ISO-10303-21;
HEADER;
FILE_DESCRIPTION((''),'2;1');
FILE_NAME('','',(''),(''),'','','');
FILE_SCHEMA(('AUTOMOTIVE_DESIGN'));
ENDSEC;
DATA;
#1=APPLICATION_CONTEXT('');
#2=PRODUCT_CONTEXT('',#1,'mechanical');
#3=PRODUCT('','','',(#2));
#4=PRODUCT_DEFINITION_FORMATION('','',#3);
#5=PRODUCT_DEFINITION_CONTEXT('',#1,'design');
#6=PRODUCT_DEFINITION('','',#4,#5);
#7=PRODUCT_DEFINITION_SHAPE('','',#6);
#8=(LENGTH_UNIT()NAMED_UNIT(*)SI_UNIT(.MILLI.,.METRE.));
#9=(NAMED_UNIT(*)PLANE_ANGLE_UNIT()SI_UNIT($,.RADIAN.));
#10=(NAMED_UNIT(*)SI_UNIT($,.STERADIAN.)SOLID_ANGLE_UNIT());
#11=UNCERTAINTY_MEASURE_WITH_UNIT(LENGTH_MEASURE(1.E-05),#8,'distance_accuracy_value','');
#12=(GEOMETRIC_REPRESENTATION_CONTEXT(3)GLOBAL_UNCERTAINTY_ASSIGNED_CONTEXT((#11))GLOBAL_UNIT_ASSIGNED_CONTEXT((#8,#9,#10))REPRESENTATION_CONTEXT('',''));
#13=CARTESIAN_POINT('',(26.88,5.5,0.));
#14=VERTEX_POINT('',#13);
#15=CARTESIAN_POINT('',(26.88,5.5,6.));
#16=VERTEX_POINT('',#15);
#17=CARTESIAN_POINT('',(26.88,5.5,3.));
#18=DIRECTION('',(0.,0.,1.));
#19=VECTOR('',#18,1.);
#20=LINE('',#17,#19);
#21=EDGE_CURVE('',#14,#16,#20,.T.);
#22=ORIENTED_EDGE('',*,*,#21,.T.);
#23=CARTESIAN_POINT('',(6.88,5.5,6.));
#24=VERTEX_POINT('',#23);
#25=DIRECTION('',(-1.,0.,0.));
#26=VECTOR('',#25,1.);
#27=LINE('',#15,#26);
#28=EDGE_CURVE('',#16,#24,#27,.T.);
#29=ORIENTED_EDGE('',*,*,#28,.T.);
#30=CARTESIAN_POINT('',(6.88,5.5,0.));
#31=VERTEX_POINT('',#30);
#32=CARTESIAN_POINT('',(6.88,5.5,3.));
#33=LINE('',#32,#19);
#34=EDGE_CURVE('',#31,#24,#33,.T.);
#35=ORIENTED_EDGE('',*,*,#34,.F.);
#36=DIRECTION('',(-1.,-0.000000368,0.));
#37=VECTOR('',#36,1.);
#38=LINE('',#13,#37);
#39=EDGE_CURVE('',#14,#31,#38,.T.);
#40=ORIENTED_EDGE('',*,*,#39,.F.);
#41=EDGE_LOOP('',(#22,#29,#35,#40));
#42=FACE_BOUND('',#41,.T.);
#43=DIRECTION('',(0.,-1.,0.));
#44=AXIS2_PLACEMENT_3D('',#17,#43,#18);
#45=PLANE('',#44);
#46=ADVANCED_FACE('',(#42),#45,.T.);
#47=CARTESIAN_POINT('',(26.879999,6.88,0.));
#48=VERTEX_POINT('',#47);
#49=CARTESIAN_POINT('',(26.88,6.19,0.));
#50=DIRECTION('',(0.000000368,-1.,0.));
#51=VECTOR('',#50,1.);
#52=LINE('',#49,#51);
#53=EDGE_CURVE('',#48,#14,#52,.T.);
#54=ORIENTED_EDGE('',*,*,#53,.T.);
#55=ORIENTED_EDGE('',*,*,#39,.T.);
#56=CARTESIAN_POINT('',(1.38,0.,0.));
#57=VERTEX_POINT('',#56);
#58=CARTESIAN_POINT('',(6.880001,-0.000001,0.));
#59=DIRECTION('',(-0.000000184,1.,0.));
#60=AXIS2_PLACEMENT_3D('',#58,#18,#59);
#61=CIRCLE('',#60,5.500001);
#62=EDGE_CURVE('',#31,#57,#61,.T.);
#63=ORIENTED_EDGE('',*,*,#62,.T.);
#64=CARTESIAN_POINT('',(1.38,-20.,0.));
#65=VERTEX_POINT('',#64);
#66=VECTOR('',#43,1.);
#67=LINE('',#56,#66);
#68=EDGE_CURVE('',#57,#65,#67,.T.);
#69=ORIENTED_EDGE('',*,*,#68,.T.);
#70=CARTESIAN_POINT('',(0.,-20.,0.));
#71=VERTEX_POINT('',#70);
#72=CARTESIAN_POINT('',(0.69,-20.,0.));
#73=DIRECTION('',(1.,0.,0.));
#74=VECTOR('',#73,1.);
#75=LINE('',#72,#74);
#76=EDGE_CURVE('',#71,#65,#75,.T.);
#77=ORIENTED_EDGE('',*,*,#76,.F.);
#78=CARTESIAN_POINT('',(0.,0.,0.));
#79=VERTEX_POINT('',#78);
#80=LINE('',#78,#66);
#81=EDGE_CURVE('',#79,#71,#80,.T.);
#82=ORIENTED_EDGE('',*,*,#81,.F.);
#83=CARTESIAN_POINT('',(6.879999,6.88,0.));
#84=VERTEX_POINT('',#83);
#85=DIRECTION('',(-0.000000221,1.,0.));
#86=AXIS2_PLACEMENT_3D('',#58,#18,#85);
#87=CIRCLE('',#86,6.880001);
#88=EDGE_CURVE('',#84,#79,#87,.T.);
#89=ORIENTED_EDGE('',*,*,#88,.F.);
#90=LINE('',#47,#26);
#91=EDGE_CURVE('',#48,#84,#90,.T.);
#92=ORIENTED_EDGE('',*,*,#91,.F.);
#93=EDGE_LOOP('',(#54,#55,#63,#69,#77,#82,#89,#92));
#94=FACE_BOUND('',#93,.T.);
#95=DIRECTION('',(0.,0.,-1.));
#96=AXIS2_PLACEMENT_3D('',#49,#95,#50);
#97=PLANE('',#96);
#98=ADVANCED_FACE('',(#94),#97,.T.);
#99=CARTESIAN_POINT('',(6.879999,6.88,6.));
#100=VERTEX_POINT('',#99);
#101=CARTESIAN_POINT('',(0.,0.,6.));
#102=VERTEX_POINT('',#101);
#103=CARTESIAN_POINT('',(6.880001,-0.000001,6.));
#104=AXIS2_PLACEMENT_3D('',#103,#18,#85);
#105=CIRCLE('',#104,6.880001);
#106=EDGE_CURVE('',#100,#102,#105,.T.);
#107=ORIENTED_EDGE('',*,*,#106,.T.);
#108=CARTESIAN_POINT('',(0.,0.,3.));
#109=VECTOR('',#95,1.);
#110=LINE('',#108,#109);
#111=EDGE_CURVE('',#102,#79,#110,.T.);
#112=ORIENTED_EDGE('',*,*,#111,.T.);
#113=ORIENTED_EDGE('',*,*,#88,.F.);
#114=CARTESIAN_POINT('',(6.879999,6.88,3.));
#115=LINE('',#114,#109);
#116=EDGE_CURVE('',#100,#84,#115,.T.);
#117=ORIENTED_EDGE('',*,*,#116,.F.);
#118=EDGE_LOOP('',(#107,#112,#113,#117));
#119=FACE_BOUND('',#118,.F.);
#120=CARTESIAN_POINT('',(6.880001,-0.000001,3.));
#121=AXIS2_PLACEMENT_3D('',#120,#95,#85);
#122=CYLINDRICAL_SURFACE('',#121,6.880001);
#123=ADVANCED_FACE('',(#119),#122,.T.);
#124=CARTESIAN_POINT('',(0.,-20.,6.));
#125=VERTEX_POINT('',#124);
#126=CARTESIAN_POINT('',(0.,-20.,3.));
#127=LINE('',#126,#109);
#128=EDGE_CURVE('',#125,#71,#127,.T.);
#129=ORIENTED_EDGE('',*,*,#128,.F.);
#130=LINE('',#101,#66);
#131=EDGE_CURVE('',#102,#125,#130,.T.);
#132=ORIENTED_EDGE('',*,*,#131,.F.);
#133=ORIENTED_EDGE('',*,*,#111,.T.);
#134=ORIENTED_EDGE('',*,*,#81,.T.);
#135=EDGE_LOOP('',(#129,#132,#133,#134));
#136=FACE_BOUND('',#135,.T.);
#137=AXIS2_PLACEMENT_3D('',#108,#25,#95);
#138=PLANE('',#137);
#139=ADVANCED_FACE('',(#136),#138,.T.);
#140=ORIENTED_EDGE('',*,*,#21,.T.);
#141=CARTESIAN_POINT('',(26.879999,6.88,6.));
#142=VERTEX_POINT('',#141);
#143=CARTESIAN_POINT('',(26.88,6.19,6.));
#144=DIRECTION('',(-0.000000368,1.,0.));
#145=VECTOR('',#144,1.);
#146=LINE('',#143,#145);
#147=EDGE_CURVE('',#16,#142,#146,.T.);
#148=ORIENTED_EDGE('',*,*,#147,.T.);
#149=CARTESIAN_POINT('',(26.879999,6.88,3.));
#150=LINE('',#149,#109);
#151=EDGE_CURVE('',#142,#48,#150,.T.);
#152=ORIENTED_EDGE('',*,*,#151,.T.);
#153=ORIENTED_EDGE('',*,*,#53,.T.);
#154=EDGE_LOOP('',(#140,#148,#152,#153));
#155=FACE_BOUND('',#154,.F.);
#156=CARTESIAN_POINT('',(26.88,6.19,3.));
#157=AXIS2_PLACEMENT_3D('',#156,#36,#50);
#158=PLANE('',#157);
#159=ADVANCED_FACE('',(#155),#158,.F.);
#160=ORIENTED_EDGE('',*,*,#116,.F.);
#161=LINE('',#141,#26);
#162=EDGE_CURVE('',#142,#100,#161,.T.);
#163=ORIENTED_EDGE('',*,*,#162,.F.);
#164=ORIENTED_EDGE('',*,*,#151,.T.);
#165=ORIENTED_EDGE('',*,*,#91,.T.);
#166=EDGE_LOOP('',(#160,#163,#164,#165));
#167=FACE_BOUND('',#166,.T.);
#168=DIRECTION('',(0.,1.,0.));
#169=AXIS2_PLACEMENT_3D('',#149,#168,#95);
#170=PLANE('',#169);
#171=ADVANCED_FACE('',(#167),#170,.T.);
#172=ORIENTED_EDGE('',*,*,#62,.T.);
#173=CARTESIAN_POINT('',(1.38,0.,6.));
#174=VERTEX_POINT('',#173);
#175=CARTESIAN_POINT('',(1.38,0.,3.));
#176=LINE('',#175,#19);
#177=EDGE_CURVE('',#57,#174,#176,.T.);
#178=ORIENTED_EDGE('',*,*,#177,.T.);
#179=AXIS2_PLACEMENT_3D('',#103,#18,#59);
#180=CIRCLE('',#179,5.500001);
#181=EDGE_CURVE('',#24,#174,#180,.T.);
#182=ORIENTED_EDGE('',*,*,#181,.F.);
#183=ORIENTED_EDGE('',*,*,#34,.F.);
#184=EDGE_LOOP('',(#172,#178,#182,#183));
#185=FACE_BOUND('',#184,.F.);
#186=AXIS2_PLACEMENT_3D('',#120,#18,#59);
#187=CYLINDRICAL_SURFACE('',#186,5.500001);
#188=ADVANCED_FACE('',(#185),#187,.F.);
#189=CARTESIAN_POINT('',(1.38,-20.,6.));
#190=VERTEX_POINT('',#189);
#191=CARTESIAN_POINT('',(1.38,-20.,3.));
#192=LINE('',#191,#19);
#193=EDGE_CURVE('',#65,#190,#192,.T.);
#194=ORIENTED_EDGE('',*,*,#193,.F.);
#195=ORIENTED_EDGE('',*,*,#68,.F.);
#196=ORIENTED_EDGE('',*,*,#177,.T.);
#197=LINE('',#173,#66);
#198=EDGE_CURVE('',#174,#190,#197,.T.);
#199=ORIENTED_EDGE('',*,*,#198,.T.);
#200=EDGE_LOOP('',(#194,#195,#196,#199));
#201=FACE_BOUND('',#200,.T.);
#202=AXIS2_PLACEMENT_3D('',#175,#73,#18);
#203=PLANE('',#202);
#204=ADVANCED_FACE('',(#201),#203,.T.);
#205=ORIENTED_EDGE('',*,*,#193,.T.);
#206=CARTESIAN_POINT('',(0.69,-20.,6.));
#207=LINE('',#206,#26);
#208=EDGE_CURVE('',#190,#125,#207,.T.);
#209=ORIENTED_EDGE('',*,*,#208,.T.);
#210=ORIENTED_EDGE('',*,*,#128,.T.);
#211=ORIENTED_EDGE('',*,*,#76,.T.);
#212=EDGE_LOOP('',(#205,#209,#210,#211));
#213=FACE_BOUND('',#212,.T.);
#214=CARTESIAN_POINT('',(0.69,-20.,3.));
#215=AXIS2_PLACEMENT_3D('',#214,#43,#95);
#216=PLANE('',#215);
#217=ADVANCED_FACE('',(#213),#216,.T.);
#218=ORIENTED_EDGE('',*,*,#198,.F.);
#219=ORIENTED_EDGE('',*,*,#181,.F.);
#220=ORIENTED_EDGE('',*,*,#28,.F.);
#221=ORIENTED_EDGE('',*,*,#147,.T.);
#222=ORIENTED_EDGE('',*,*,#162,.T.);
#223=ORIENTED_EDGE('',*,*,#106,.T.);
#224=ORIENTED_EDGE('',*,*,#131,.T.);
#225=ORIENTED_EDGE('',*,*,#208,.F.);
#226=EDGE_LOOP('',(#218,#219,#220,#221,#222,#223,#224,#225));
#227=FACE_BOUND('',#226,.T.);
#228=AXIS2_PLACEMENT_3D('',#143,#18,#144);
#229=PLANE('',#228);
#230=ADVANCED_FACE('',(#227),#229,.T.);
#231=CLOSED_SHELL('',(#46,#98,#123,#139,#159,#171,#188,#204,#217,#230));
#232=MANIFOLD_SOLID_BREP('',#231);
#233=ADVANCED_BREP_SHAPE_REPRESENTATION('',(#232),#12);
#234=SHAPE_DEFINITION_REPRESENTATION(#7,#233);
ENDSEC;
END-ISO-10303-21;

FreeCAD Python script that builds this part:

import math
import FreeCAD as App
import Part
import Sketcher


def add_polygon(sketch, points):
    """Adds a closed chain of lines whose ends are joined by coincident constraints."""
    first, n = sketch.GeometryCount, len(points)
    for a, b in zip(points, points[1:] + points[:1]):
        sketch.addGeometry(Part.LineSegment(App.Vector(*a, 0), App.Vector(*b, 0)), False)
    for i in range(n):
        sketch.addConstraint(Sketcher.Constraint("Coincident", first + i, 2, first + (i + 1) % n, 1))

doc = App.newDocument("Part")
body = doc.addObject("PartDesign::Body", "Body")

sketch1 = body.newObject("Sketcher::SketchObject", "Sketch")
sketch1.AttachmentSupport = (doc.getObject("XZ_Plane"), [""])
sketch1.MapMode = "FlatFace"
add_polygon(sketch1, [(0, 6), (0, 0), (1.4, 0), (1.4, 6)])
sketch1.addConstraint([
    Sketcher.Constraint("Vertical", 0),
    Sketcher.Constraint("Horizontal", 1),
    Sketcher.Constraint("Vertical", 2),
    Sketcher.Constraint("Horizontal", 3),
    Sketcher.Constraint("Coincident", 0, 2, -1, 1),
    Sketcher.Constraint("DistanceY", 0, 2, 0, 1, 6.0),
    Sketcher.Constraint("DistanceX", 1, 1, 1, 2, 1.38),
])

sketch2 = body.newObject("Sketcher::SketchObject", "Sketch001")
sketch2.AttachmentSupport = (doc.getObject("XY_Plane"), [""])
sketch2.MapMode = "FlatFace"
sketch2.addGeometry([
    Part.LineSegment(App.Vector(27, 6, 0), App.Vector(7, 6, 0)),
    Part.ArcOfCircle(Part.Circle(App.Vector(7, 0, 0), App.Vector(0, 0, 1), 6), math.radians(90), math.radians(180)),
    Part.LineSegment(App.Vector(1, 0, 0), App.Vector(1, -20, 0)),
], False)
sketch2.addConstraint([
    Sketcher.Constraint("Tangent", 0, 2, 1, 1),
    Sketcher.Constraint("Tangent", 1, 2, 2, 1),
    Sketcher.Constraint("Horizontal", 0),
    Sketcher.Constraint("Vertical", 2),
    Sketcher.Constraint("PointOnObject", 1, 3, -1),
    Sketcher.Constraint("Equal", 0, 2),
    Sketcher.Constraint("Radius", 1, 5.500001),
    Sketcher.Constraint("DistanceX", 0, 2, 0, 1, 20.0),
    Sketcher.Constraint("DistanceX", -1, 1, 1, 3, 6.880001),
])
doc.recompute()

additivepipe = body.newObject("PartDesign::AdditivePipe", "AdditivePipe")
additivepipe.Profile = sketch1
additivepipe.Spine = (sketch2, ["Edge1", "Edge2", "Edge3"])

doc.recompute()
